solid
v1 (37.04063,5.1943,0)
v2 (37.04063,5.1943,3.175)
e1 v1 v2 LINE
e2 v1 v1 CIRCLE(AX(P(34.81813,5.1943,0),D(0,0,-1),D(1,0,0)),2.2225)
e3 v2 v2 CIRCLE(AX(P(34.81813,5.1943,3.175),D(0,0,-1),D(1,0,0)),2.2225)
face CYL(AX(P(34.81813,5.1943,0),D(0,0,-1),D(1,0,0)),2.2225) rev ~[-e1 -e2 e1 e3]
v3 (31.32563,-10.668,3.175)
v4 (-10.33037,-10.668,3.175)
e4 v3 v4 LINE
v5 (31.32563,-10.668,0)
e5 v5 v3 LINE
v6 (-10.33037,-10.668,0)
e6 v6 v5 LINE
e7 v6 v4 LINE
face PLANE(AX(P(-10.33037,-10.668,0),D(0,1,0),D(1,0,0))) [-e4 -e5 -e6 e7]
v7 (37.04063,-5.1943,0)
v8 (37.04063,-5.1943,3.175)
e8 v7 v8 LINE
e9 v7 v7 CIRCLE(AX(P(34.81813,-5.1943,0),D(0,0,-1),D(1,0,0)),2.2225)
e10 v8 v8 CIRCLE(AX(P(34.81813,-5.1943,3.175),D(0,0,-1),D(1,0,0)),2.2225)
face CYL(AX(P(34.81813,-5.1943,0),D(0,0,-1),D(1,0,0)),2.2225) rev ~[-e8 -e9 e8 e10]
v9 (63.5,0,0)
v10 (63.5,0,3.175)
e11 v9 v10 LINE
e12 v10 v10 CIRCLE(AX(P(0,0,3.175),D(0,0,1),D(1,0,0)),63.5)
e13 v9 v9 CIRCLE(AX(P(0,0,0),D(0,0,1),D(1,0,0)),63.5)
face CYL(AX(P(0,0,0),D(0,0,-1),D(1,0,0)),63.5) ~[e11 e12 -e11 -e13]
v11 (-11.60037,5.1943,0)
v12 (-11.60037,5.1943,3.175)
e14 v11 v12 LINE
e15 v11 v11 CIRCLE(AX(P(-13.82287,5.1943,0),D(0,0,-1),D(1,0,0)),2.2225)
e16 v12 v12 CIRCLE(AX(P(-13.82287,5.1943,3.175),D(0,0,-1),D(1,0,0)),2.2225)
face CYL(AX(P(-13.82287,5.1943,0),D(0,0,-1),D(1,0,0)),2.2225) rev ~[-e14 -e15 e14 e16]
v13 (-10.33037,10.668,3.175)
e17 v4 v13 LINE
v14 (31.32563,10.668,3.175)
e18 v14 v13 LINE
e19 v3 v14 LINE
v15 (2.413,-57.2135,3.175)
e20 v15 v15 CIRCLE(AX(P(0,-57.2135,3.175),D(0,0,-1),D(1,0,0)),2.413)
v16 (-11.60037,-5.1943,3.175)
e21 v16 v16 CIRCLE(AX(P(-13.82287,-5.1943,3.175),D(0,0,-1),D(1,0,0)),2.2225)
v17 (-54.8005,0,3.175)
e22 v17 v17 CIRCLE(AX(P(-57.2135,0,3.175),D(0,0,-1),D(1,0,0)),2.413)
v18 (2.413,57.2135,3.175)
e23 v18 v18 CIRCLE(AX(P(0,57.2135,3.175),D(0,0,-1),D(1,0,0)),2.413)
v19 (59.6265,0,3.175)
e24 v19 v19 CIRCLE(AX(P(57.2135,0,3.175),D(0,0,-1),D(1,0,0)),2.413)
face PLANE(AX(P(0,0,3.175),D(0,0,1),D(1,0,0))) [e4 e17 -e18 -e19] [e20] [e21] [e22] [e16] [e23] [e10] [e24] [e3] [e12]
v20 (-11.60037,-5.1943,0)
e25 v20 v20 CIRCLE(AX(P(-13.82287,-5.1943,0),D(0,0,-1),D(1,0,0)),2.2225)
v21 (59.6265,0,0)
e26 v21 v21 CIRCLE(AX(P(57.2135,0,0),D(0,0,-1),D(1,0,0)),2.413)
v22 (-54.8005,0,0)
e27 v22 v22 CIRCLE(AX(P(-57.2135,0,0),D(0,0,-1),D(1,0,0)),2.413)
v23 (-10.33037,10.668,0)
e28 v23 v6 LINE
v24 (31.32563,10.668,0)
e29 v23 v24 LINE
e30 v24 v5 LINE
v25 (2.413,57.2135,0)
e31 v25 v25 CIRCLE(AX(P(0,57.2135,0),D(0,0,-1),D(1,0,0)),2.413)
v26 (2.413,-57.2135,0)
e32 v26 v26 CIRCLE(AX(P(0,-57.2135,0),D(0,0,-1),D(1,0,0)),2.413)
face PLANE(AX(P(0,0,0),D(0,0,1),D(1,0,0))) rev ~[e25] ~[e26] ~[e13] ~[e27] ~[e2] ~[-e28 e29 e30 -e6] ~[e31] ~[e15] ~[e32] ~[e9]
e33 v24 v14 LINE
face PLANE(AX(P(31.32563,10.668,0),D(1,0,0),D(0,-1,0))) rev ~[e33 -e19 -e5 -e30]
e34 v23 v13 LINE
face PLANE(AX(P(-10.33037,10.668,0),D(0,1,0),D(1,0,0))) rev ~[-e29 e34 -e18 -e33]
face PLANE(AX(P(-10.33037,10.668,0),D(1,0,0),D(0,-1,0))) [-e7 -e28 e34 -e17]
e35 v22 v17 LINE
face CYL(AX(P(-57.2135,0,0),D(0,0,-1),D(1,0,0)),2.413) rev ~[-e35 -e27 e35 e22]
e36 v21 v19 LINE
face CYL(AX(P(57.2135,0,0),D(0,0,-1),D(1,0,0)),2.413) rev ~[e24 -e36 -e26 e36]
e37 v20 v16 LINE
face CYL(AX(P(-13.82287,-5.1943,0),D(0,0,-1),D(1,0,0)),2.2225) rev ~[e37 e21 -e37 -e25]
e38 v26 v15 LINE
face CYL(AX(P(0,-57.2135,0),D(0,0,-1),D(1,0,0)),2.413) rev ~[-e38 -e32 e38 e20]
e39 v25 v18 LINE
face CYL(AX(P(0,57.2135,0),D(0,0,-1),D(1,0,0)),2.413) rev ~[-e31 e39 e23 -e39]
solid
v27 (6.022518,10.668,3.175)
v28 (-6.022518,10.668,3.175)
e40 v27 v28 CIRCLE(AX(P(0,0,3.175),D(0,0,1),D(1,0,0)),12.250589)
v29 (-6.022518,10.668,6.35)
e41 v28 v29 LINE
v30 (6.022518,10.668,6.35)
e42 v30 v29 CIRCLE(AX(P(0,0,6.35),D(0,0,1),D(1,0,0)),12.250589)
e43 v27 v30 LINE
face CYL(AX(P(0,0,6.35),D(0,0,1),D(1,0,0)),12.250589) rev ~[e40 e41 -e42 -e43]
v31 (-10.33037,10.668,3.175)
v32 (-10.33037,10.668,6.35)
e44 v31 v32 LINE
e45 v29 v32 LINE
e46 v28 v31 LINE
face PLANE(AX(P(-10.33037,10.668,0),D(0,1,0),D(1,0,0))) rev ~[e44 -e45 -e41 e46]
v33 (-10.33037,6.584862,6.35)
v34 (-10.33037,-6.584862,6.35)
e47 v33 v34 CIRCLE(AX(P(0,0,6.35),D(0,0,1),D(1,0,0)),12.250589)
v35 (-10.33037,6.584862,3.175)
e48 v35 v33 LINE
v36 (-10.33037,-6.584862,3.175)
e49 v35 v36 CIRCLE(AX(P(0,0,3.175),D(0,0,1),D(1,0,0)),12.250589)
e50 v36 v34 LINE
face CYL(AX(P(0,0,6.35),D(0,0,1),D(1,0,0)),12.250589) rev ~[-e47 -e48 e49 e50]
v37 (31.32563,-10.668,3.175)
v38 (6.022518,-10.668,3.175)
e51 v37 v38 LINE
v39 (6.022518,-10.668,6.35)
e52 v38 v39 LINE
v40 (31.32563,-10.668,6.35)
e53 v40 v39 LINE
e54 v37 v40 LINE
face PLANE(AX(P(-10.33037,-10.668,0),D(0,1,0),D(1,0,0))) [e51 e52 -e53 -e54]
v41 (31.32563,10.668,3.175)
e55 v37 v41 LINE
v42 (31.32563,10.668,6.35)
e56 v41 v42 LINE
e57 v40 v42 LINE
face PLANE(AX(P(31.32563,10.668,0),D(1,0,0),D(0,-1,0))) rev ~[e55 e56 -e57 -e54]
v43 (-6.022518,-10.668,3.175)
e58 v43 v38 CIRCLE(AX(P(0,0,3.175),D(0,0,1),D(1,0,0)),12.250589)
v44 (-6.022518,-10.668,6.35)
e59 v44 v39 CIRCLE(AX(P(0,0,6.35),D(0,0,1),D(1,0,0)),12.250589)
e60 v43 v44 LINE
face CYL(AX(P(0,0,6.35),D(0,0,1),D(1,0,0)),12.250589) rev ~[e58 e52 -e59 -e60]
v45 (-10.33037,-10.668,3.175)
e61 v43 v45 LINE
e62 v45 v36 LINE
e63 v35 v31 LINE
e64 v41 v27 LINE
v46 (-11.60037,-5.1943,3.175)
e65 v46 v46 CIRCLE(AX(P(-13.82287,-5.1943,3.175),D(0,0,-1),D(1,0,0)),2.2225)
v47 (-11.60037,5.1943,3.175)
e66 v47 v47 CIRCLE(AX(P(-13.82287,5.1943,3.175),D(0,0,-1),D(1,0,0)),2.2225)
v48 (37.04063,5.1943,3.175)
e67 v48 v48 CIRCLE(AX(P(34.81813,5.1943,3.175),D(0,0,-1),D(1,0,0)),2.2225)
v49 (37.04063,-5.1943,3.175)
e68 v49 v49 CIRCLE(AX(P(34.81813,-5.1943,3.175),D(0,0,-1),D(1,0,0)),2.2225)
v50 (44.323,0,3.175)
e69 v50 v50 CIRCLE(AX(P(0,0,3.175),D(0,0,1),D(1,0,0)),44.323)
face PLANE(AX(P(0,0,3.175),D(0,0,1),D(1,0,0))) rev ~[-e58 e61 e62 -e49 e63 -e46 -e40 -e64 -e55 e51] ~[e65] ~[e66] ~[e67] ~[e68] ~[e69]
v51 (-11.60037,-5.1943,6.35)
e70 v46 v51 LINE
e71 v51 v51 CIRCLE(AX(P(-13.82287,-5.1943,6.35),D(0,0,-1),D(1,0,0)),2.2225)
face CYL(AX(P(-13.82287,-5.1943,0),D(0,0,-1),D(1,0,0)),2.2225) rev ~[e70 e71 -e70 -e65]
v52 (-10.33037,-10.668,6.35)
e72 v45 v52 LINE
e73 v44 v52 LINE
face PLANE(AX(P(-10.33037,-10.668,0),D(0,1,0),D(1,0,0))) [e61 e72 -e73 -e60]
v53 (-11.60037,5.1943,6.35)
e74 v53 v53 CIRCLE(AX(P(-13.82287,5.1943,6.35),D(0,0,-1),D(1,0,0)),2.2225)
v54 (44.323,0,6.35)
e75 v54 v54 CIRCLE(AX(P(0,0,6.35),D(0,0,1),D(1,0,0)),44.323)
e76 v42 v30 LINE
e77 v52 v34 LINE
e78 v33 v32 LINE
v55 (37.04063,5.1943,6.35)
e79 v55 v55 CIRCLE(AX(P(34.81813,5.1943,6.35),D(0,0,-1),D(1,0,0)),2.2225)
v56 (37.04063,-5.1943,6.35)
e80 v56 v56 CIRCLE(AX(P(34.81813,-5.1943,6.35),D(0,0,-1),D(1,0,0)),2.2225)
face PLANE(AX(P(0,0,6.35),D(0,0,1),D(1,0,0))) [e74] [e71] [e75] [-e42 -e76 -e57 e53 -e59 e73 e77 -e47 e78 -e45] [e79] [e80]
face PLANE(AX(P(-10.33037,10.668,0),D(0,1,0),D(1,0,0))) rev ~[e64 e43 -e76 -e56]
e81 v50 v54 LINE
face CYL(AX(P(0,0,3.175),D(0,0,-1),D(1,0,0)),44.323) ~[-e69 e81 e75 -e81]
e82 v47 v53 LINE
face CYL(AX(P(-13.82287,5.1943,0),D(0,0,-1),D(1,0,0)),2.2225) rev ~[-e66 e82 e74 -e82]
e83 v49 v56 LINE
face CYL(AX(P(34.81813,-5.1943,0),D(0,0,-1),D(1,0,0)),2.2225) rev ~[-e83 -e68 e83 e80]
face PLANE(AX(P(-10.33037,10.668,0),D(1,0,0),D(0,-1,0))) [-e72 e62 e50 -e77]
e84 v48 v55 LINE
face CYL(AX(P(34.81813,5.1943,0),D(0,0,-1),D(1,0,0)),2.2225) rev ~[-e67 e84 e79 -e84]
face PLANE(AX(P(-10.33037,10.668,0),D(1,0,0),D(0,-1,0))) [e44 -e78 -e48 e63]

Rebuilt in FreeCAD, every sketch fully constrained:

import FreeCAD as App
import Part
import Sketcher
Q = App.Units.Quantity


def add_polygon(sketch, points):
    """Adds a closed chain of lines whose ends are joined by coincident constraints."""
    first, n = sketch.GeometryCount, len(points)
    for a, b in zip(points, points[1:] + points[:1]):
        sketch.addGeometry(Part.LineSegment(App.Vector(*a, 0), App.Vector(*b, 0)), False)
    for i in range(n):
        sketch.addConstraint(Sketcher.Constraint("Coincident", first + i, 2, first + (i + 1) % n, 1))

doc = App.newDocument("Part")
params = doc.addObject("Spreadsheet::Sheet", "Params")
for row, (alias, value) in enumerate([
    ("sketch1_diameter", "5 in"),
    ("pad1_length", "0.125 in"),
    ("sketch2_diameter", "5 in"),
    ("sketch2_diameter2", "4.01 in"),
    ("pad2_length", "0.125 in"),
    ("sketch3_diameter", "3.49 in"),
    ("pad3_length", "0.125 in"),
    ("sketch4_diameter", "0.19 in"),
    ("sketch4_diameter2", "0.175 in"),
    ("sketch4_width", "1.64 in"),
    ("sketch4_height", "0.84 in"),
    ("pad4_length", "6.351 mm"),
    ("sketch5_diameter", "0.19 in"),
    ("pocket1_length", "1 in"),
], start=1):
    params.set(f"A{row}", alias)
    params.set(f"B{row}", "=" + value)
    params.setAlias(f"B{row}", alias)

body = doc.addObject("PartDesign::Body", "Body")

# Sketch on XY plane
sketch1 = doc.addObject("Sketcher::SketchObject", "Sketch")
body.addObject(sketch1)
sketch1.AttachmentSupport = (doc.XY_Plane, [""])
sketch1.MapMode = "FlatFace"
sketch1.addGeometry(Part.Circle(App.Vector(0, 0, 0), App.Vector(0, 0, 1), 63.5), False)
sketch1.addConstraint([
    Sketcher.Constraint("Coincident", 0, 3, -1, 1),
    Sketcher.Constraint("Diameter", 0, Q("5 in")),
])
sketch1.setExpression("Constraints[1]", "Params.sketch1_diameter")
pad1 = doc.addObject("PartDesign::Pad", "Pad")
body.addObject(pad1)
pad1.Profile = sketch1
pad1.setExpression("Length", "Params.pad1_length")
body2 = doc.addObject("PartDesign::Body", "Body001")

# Sketch on XY plane
sketch2 = doc.addObject("Sketcher::SketchObject", "Sketch001")
body2.addObject(sketch2)
sketch2.AttachmentSupport = (doc.getObject("XY_Plane001"), [""])
sketch2.MapMode = "FlatFace"
sketch2.AttachmentOffset = App.Placement(App.Vector(0, 0, 0.125 * 25.4), App.Rotation())
sketch2.addGeometry([
    Part.Circle(App.Vector(0, 0, 0), App.Vector(0, 0, 1), 63.5),
    Part.Circle(App.Vector(0, 0, 0), App.Vector(0, 0, 1), 50.927),
], False)
sketch2.addConstraint([
    Sketcher.Constraint("Coincident", 0, 3, -1, 1),
    Sketcher.Constraint("Coincident", 1, 3, -1, 1),
    Sketcher.Constraint("Diameter", 0, Q("5 in")),
    Sketcher.Constraint("Diameter", 1, Q("4.01 in")),
])
sketch2.setExpression("Constraints[2]", "Params.sketch2_diameter")
sketch2.setExpression("Constraints[3]", "Params.sketch2_diameter2")
pad2 = doc.addObject("PartDesign::Pad", "Pad001")
body2.addObject(pad2)
pad2.Profile = sketch2
pad2.setExpression("Length", "Params.pad2_length")
body3 = doc.addObject("PartDesign::Body", "Body002")

# Sketch on XY plane
sketch3 = doc.addObject("Sketcher::SketchObject", "Sketch002")
body3.addObject(sketch3)
sketch3.AttachmentSupport = (doc.getObject("XY_Plane002"), [""])
sketch3.MapMode = "FlatFace"
sketch3.AttachmentOffset = App.Placement(App.Vector(0, 0, 0.125 * 25.4), App.Rotation())
sketch3.addGeometry(Part.Circle(App.Vector(0, 0, 0), App.Vector(0, 0, 1), 44.323), False)
sketch3.addConstraint([
    Sketcher.Constraint("Coincident", 0, 3, -1, 1),
    Sketcher.Constraint("Diameter", 0, Q("3.49 in")),
])
sketch3.setExpression("Constraints[1]", "Params.sketch3_diameter")
pad3 = doc.addObject("PartDesign::Pad", "Pad002")
body3.addObject(pad3)
pad3.Profile = sketch3
pad3.setExpression("Length", "Params.pad3_length")
body4 = doc.addObject("PartDesign::Body", "Body003")
body4.AllowCompound = True

# Sketch on XY plane
sketch4 = doc.addObject("Sketcher::SketchObject", "Sketch003")
body4.addObject(sketch4)
sketch4.AttachmentSupport = (doc.getObject("XY_Plane003"), [""])
sketch4.MapMode = "FlatFace"
add_polygon(sketch4, [(-10.33037, -10.668), (-10.33037, 10.668), (31.32563, 10.668), (31.32563, -10.668)])  # lines 0-3
sketch4.addGeometry(Part.Circle(App.Vector(34.81813, 5.1943, 0), App.Vector(0, 0, 1), 2.2225), False)  # 4
sketch4.addGeometry(Part.Circle(App.Vector(34.81813, -5.1943, 0), App.Vector(0, 0, 1), 2.2225), False)  # 5
sketch4.addGeometry(Part.Circle(App.Vector(-13.82287, -5.1943, 0), App.Vector(0, 0, 1), 2.2225), False)  # 6
sketch4.addGeometry(Part.Circle(App.Vector(-13.82287, 5.1943, 0), App.Vector(0, 0, 1), 2.2225), False)  # 7
sketch4.addGeometry(Part.Circle(App.Vector(-57.2135, 0, 0), App.Vector(0, 0, 1), 2.413), False)  # 8
sketch4.addGeometry(Part.Circle(App.Vector(0, 57.2135, 0), App.Vector(0, 0, 1), 2.413), False)  # 9
sketch4.addGeometry(Part.Circle(App.Vector(57.2135, 0, 0), App.Vector(0, 0, 1), 2.413), False)  # 10
sketch4.addGeometry(Part.Circle(App.Vector(0, -57.2135, 0), App.Vector(0, 0, 1), 2.413), False)  # 11
sketch4.addConstraint([
    Sketcher.Constraint("Vertical", 0),
    Sketcher.Constraint("Horizontal", 1),
    Sketcher.Constraint("Vertical", 2),
    Sketcher.Constraint("Horizontal", 3),
    Sketcher.Constraint("Equal", 4, 5),
    Sketcher.Constraint("Equal", 5, 6),
    Sketcher.Constraint("Equal", 6, 7),
    Sketcher.Constraint("Equal", 8, 9),
    Sketcher.Constraint("Equal", 9, 10),
    Sketcher.Constraint("Equal", 10, 11),
    Sketcher.Constraint("Symmetric", 8, 3, 10, 3, -1, 1),
    Sketcher.Constraint("Symmetric", 9, 3, 11, 3, -1, 1),
    Sketcher.Constraint("Symmetric", 4, 3, 5, 3, -1),
    Sketcher.Constraint("Symmetric", 6, 3, 7, 3, -1),
    Sketcher.Constraint("PointOnObject", 8, 3, -1),
    Sketcher.Constraint("PointOnObject", 9, 3, -2),
    Sketcher.Constraint("Horizontal", 5, 3, 6, 3),
    Sketcher.Constraint("Diameter", 8, Q("0.19 in")),
    Sketcher.Constraint("Diameter", 4, Q("0.175 in")),
    Sketcher.Constraint("DistanceX", 1, 1, 1, 2, Q("1.64 in")),
    Sketcher.Constraint("DistanceY", 0, 1, 0, 2, Q("0.84 in")),
    Sketcher.Constraint("DistanceY", -1, 1, 0, 2, Q("0.42 in")),
    Sketcher.Constraint("DistanceY", 5, 3, 4, 3, Q("0.409 in")),
    Sketcher.Constraint("DistanceX", 6, 3, 5, 3, Q("1.915 in")),
    Sketcher.Constraint("DistanceY", 7, 3, 9, 3, Q("2.048 in")),
    Sketcher.Constraint("DistanceX", 8, 3, -1, 1, Q("2.2525 in")),
    Sketcher.Constraint("DistanceX", 7, 3, 0, 2, Q("0.1375 in")),
    Sketcher.Constraint("DistanceX", -1, 1, 4, 3, 34.81813),
])
sketch4.setExpression("Constraints[21]", "Params.sketch4_diameter")
sketch4.setExpression("Constraints[22]", "Params.sketch4_diameter2")
sketch4.setExpression("Constraints[23]", "Params.sketch4_width")
sketch4.setExpression("Constraints[24]", "Params.sketch4_height")
pad4 = doc.addObject("PartDesign::Pad", "Pad003")
body4.addObject(pad4)
pad4.Profile = sketch4
pad4.setExpression("Length", "Params.pad4_length")
doc.recompute()

body5 = doc.addObject("PartDesign::Body", "Body004")
body5.BaseFeature = body4
boolean = doc.addObject("PartDesign::Boolean", "Boolean")
body.addObject(boolean)
boolean.Type = "Cut"
boolean.addObjects([body5])
doc.recompute()

# Sketch on XY plane
sketch5 = doc.addObject("Sketcher::SketchObject", "Sketch004")
body.addObject(sketch5)
sketch5.AttachmentSupport = (doc.XY_Plane, [""])
sketch5.MapMode = "FlatFace"
sketch5.addGeometry([
    Part.Circle(App.Vector(-57.2135, 0, 0), App.Vector(0, 0, 1), 2.413),
    Part.Circle(App.Vector(0, -57.2135, 0), App.Vector(0, 0, 1), 2.413),
    Part.Circle(App.Vector(57.2135, 0, 0), App.Vector(0, 0, 1), 2.413),
    Part.Circle(App.Vector(0, 57.2135, 0), App.Vector(0, 0, 1), 2.413),
], False)
sketch5.addConstraint([
    Sketcher.Constraint("Equal", 0, 1),
    Sketcher.Constraint("Equal", 1, 2),
    Sketcher.Constraint("Equal", 2, 3),
    Sketcher.Constraint("Symmetric", 0, 3, 2, 3, -1, 1),
    Sketcher.Constraint("Symmetric", 1, 3, 3, 3, -1, 1),
    Sketcher.Constraint("PointOnObject", 0, 3, -1),
    Sketcher.Constraint("PointOnObject", 1, 3, -2),
    Sketcher.Constraint("Diameter", 0, Q("0.19 in")),
    Sketcher.Constraint("DistanceX", 0, 3, 2, 3, Q("4.505 in")),
    Sketcher.Constraint("DistanceY", 1, 3, 3, 3, Q("4.505 in")),
])
sketch5.setExpression("Constraints[7]", "Params.sketch5_diameter")
pocket1 = doc.addObject("PartDesign::Pocket", "Pocket")
body.addObject(pocket1)
pocket1.Profile = sketch5
pocket1.setExpression("Length", "Params.pocket1_length")
pocket1.Reversed = True
doc.recompute()

body6 = doc.addObject("PartDesign::Body", "Body005")
body6.BaseFeature = body4
boolean2 = doc.addObject("PartDesign::Boolean", "Boolean001")
body2.addObject(boolean2)
boolean2.Type = "Cut"
boolean2.addObjects([body6])
doc.recompute()

boolean3 = doc.addObject("PartDesign::Boolean", "Boolean002")
body3.addObject(boolean3)
boolean3.Type = "Cut"
boolean3.addObjects([body4])

# Sketch on XY plane
sketch6 = doc.addObject("Sketcher::SketchObject", "Sketch005")
body3.addObject(sketch6)
sketch6.AttachmentSupport = (doc.getObject("XY_Plane002"), [""])
sketch6.MapMode = "FlatFace"
sketch6.AttachmentOffset = App.Placement(App.Vector(0, 0, 0.25 * 25.4), App.Rotation())
sketch6.addGeometry(Part.Circle(App.Vector(0, 0, 0), App.Vector(0, 0, 1), 12.250589), False)
sketch6.addConstraint([
    Sketcher.Constraint("Coincident", 0, 3, -1, 1),
    Sketcher.Constraint("Diameter", 0, 24.501179),
])
pocket2 = doc.addObject("PartDesign::Pocket", "Pocket001")
body3.addObject(pocket2)
pocket2.Profile = sketch6
pocket2.Type = "ThroughAll"
body2.Visibility = False

doc.recompute()
